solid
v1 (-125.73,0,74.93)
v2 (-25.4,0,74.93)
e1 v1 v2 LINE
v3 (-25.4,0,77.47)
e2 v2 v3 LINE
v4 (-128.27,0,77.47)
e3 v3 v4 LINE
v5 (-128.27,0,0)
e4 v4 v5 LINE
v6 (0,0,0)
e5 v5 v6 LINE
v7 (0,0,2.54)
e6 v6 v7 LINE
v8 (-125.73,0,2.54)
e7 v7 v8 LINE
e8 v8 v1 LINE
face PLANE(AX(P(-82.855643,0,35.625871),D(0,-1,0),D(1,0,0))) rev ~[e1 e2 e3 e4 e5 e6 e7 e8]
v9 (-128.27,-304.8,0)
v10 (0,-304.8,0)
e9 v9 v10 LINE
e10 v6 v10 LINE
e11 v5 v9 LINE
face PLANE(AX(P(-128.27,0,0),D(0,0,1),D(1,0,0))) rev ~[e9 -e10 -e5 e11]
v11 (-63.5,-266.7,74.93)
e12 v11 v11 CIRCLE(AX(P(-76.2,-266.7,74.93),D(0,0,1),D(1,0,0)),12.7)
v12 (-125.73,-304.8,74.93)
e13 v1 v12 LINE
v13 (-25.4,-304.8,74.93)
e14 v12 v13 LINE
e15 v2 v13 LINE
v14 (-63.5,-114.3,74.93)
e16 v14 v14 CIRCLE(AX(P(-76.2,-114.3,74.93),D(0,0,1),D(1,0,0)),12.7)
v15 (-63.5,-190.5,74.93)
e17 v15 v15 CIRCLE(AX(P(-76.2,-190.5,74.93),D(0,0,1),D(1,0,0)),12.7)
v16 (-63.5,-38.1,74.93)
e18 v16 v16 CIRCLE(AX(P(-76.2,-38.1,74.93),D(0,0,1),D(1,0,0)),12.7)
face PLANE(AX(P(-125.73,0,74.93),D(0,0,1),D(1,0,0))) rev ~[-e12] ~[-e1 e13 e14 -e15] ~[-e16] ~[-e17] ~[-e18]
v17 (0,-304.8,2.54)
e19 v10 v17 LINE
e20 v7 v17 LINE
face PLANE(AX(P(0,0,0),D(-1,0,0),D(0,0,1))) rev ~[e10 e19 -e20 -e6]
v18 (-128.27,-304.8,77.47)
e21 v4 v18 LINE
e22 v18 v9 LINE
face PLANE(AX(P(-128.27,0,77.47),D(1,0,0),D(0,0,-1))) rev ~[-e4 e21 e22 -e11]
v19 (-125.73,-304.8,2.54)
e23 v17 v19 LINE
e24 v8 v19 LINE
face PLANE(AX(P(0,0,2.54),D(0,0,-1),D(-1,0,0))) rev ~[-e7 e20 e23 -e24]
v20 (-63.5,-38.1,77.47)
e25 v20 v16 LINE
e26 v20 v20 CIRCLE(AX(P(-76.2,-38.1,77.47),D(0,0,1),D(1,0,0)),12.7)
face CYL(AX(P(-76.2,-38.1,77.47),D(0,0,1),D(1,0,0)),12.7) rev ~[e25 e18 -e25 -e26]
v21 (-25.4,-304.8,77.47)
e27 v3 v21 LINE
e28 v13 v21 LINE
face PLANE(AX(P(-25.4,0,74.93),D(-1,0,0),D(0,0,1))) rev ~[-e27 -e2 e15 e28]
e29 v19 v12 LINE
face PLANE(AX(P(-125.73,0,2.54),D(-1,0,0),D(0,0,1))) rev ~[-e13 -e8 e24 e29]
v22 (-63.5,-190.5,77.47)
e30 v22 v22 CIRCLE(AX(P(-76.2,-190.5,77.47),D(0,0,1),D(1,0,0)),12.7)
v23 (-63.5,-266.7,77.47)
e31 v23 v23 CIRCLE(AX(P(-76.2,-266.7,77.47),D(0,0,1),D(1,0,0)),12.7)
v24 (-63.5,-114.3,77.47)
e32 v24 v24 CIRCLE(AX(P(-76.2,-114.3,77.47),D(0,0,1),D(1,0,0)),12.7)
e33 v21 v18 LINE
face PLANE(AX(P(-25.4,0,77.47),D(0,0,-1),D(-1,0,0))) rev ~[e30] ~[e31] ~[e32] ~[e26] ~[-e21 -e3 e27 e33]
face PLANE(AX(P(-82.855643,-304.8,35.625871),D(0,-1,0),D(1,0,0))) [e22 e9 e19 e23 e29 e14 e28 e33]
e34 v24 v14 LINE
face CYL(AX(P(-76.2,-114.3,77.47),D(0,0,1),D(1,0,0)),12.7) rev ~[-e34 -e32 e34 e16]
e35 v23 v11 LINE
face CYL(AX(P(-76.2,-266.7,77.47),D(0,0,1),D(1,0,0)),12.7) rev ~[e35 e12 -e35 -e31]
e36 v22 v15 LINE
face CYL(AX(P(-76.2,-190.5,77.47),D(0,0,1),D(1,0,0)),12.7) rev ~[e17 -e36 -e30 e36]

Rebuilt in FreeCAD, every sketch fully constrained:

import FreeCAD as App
import Part
import Sketcher
Q = App.Units.Quantity


def add_polygon(sketch, points):
    """Adds a closed chain of lines whose ends are joined by coincident constraints."""
    first, n = sketch.GeometryCount, len(points)
    for a, b in zip(points, points[1:] + points[:1]):
        sketch.addGeometry(Part.LineSegment(App.Vector(*a, 0), App.Vector(*b, 0)), False)
    for i in range(n):
        sketch.addConstraint(Sketcher.Constraint("Coincident", first + i, 2, first + (i + 1) % n, 1))

doc = App.newDocument("Part")
body = doc.addObject("PartDesign::Body", "Body")

sketch1 = body.newObject("Sketcher::SketchObject", "Sketch")
sketch1.AttachmentSupport = (doc.getObject("XZ_Plane"), [""])
sketch1.MapMode = "FlatFace"
add_polygon(sketch1, [(-128.27, 0), (0, 0), (0, 2.54), (-125.73, 2.54), (-125.73, 74.93), (-25.4, 74.93), (-25.4, 77.47), (-128.27, 77.47)])
sketch1.addConstraint(Sketcher.Constraint("Horizontal", 0))
sketch1.addConstraint(Sketcher.Constraint("Vertical", 1))
sketch1.addConstraint(Sketcher.Constraint("Horizontal", 2))
sketch1.addConstraint(Sketcher.Constraint("Vertical", 3))
sketch1.addConstraint(Sketcher.Constraint("Horizontal", 4))
sketch1.addConstraint(Sketcher.Constraint("Vertical", 5))
sketch1.addConstraint(Sketcher.Constraint("Horizontal", 6))
sketch1.addConstraint(Sketcher.Constraint("Vertical", 7))
sketch1.addConstraint(Sketcher.Constraint("Coincident", 0, 2, -1, 1))
sketch1.addConstraint(Sketcher.Constraint("Equal", 1, 5))
sketch1.addConstraint(Sketcher.Constraint("DistanceY", 1, 1, 1, 2, Q("0.1 in")))
sketch1.addConstraint(Sketcher.Constraint("DistanceX", 4, 2, -1, 1, Q("1 in")))
sketch1.addConstraint(Sketcher.Constraint("DistanceX", 0, 1, 0, 2, Q("5.05 in")))
sketch1.addConstraint(Sketcher.Constraint("DistanceX", 2, 2, 2, 1, Q("4.95 in")))
sketch1.addConstraint(Sketcher.Constraint("DistanceY", 3, 1, 3, 2, Q("2.85 in")))
pad1 = body.newObject("PartDesign::Pad", "Pad")
pad1.Profile = sketch1
pad1.Length = Q("12 in")

sketch2 = body.newObject("Sketcher::SketchObject", "Sketch001")
sketch2.AttachmentSupport = (doc.getObject("XY_Plane"), [""])
sketch2.MapMode = "FlatFace"
sketch2.AttachmentOffset = App.Placement(App.Vector(0, 0, 3.05 * 25.4), App.Rotation())
sketch2.addGeometry(Part.Circle(App.Vector(-76.2, -114.3, 0), App.Vector(0, 0, 1), 12.7), False)
sketch2.addGeometry(Part.Circle(App.Vector(-76.2, -266.7, 0), App.Vector(0, 0, 1), 12.7), False)
sketch2.addGeometry(Part.Circle(App.Vector(-76.2, -38.1, 0), App.Vector(0, 0, 1), 12.7), False)
sketch2.addGeometry(Part.Circle(App.Vector(-76.2, -190.5, 0), App.Vector(0, 0, 1), 12.7), False)
sketch2.addConstraint(Sketcher.Constraint("Equal", 0, 1))
sketch2.addConstraint(Sketcher.Constraint("Equal", 1, 2))
sketch2.addConstraint(Sketcher.Constraint("Equal", 2, 3))
sketch2.addConstraint(Sketcher.Constraint("Vertical", 0, 3, 1, 3))
sketch2.addConstraint(Sketcher.Constraint("Vertical", 1, 3, 2, 3))
sketch2.addConstraint(Sketcher.Constraint("Vertical", 2, 3, 3, 3))
sketch2.addConstraint(Sketcher.Constraint("Diameter", 0, Q("1 in")))
sketch2.addConstraint(Sketcher.Constraint("DistanceX", 0, 3, -1, 1, Q("3 in")))
sketch2.addConstraint(Sketcher.Constraint("DistanceY", 1, 3, 0, 3, Q("6 in")))
sketch2.addConstraint(Sketcher.Constraint("DistanceY", 0, 3, 2, 3, Q("3 in")))
sketch2.addConstraint(Sketcher.Constraint("DistanceY", 1, 3, 3, 3, Q("3 in")))
sketch2.addConstraint(Sketcher.Constraint("DistanceY", 0, 3, -1, 1, Q("4.5 in")))
pocket1 = body.newObject("PartDesign::Pocket", "Pocket")
pocket1.Profile = sketch2
pocket1.Length = Q("1 in")

doc.recompute()
